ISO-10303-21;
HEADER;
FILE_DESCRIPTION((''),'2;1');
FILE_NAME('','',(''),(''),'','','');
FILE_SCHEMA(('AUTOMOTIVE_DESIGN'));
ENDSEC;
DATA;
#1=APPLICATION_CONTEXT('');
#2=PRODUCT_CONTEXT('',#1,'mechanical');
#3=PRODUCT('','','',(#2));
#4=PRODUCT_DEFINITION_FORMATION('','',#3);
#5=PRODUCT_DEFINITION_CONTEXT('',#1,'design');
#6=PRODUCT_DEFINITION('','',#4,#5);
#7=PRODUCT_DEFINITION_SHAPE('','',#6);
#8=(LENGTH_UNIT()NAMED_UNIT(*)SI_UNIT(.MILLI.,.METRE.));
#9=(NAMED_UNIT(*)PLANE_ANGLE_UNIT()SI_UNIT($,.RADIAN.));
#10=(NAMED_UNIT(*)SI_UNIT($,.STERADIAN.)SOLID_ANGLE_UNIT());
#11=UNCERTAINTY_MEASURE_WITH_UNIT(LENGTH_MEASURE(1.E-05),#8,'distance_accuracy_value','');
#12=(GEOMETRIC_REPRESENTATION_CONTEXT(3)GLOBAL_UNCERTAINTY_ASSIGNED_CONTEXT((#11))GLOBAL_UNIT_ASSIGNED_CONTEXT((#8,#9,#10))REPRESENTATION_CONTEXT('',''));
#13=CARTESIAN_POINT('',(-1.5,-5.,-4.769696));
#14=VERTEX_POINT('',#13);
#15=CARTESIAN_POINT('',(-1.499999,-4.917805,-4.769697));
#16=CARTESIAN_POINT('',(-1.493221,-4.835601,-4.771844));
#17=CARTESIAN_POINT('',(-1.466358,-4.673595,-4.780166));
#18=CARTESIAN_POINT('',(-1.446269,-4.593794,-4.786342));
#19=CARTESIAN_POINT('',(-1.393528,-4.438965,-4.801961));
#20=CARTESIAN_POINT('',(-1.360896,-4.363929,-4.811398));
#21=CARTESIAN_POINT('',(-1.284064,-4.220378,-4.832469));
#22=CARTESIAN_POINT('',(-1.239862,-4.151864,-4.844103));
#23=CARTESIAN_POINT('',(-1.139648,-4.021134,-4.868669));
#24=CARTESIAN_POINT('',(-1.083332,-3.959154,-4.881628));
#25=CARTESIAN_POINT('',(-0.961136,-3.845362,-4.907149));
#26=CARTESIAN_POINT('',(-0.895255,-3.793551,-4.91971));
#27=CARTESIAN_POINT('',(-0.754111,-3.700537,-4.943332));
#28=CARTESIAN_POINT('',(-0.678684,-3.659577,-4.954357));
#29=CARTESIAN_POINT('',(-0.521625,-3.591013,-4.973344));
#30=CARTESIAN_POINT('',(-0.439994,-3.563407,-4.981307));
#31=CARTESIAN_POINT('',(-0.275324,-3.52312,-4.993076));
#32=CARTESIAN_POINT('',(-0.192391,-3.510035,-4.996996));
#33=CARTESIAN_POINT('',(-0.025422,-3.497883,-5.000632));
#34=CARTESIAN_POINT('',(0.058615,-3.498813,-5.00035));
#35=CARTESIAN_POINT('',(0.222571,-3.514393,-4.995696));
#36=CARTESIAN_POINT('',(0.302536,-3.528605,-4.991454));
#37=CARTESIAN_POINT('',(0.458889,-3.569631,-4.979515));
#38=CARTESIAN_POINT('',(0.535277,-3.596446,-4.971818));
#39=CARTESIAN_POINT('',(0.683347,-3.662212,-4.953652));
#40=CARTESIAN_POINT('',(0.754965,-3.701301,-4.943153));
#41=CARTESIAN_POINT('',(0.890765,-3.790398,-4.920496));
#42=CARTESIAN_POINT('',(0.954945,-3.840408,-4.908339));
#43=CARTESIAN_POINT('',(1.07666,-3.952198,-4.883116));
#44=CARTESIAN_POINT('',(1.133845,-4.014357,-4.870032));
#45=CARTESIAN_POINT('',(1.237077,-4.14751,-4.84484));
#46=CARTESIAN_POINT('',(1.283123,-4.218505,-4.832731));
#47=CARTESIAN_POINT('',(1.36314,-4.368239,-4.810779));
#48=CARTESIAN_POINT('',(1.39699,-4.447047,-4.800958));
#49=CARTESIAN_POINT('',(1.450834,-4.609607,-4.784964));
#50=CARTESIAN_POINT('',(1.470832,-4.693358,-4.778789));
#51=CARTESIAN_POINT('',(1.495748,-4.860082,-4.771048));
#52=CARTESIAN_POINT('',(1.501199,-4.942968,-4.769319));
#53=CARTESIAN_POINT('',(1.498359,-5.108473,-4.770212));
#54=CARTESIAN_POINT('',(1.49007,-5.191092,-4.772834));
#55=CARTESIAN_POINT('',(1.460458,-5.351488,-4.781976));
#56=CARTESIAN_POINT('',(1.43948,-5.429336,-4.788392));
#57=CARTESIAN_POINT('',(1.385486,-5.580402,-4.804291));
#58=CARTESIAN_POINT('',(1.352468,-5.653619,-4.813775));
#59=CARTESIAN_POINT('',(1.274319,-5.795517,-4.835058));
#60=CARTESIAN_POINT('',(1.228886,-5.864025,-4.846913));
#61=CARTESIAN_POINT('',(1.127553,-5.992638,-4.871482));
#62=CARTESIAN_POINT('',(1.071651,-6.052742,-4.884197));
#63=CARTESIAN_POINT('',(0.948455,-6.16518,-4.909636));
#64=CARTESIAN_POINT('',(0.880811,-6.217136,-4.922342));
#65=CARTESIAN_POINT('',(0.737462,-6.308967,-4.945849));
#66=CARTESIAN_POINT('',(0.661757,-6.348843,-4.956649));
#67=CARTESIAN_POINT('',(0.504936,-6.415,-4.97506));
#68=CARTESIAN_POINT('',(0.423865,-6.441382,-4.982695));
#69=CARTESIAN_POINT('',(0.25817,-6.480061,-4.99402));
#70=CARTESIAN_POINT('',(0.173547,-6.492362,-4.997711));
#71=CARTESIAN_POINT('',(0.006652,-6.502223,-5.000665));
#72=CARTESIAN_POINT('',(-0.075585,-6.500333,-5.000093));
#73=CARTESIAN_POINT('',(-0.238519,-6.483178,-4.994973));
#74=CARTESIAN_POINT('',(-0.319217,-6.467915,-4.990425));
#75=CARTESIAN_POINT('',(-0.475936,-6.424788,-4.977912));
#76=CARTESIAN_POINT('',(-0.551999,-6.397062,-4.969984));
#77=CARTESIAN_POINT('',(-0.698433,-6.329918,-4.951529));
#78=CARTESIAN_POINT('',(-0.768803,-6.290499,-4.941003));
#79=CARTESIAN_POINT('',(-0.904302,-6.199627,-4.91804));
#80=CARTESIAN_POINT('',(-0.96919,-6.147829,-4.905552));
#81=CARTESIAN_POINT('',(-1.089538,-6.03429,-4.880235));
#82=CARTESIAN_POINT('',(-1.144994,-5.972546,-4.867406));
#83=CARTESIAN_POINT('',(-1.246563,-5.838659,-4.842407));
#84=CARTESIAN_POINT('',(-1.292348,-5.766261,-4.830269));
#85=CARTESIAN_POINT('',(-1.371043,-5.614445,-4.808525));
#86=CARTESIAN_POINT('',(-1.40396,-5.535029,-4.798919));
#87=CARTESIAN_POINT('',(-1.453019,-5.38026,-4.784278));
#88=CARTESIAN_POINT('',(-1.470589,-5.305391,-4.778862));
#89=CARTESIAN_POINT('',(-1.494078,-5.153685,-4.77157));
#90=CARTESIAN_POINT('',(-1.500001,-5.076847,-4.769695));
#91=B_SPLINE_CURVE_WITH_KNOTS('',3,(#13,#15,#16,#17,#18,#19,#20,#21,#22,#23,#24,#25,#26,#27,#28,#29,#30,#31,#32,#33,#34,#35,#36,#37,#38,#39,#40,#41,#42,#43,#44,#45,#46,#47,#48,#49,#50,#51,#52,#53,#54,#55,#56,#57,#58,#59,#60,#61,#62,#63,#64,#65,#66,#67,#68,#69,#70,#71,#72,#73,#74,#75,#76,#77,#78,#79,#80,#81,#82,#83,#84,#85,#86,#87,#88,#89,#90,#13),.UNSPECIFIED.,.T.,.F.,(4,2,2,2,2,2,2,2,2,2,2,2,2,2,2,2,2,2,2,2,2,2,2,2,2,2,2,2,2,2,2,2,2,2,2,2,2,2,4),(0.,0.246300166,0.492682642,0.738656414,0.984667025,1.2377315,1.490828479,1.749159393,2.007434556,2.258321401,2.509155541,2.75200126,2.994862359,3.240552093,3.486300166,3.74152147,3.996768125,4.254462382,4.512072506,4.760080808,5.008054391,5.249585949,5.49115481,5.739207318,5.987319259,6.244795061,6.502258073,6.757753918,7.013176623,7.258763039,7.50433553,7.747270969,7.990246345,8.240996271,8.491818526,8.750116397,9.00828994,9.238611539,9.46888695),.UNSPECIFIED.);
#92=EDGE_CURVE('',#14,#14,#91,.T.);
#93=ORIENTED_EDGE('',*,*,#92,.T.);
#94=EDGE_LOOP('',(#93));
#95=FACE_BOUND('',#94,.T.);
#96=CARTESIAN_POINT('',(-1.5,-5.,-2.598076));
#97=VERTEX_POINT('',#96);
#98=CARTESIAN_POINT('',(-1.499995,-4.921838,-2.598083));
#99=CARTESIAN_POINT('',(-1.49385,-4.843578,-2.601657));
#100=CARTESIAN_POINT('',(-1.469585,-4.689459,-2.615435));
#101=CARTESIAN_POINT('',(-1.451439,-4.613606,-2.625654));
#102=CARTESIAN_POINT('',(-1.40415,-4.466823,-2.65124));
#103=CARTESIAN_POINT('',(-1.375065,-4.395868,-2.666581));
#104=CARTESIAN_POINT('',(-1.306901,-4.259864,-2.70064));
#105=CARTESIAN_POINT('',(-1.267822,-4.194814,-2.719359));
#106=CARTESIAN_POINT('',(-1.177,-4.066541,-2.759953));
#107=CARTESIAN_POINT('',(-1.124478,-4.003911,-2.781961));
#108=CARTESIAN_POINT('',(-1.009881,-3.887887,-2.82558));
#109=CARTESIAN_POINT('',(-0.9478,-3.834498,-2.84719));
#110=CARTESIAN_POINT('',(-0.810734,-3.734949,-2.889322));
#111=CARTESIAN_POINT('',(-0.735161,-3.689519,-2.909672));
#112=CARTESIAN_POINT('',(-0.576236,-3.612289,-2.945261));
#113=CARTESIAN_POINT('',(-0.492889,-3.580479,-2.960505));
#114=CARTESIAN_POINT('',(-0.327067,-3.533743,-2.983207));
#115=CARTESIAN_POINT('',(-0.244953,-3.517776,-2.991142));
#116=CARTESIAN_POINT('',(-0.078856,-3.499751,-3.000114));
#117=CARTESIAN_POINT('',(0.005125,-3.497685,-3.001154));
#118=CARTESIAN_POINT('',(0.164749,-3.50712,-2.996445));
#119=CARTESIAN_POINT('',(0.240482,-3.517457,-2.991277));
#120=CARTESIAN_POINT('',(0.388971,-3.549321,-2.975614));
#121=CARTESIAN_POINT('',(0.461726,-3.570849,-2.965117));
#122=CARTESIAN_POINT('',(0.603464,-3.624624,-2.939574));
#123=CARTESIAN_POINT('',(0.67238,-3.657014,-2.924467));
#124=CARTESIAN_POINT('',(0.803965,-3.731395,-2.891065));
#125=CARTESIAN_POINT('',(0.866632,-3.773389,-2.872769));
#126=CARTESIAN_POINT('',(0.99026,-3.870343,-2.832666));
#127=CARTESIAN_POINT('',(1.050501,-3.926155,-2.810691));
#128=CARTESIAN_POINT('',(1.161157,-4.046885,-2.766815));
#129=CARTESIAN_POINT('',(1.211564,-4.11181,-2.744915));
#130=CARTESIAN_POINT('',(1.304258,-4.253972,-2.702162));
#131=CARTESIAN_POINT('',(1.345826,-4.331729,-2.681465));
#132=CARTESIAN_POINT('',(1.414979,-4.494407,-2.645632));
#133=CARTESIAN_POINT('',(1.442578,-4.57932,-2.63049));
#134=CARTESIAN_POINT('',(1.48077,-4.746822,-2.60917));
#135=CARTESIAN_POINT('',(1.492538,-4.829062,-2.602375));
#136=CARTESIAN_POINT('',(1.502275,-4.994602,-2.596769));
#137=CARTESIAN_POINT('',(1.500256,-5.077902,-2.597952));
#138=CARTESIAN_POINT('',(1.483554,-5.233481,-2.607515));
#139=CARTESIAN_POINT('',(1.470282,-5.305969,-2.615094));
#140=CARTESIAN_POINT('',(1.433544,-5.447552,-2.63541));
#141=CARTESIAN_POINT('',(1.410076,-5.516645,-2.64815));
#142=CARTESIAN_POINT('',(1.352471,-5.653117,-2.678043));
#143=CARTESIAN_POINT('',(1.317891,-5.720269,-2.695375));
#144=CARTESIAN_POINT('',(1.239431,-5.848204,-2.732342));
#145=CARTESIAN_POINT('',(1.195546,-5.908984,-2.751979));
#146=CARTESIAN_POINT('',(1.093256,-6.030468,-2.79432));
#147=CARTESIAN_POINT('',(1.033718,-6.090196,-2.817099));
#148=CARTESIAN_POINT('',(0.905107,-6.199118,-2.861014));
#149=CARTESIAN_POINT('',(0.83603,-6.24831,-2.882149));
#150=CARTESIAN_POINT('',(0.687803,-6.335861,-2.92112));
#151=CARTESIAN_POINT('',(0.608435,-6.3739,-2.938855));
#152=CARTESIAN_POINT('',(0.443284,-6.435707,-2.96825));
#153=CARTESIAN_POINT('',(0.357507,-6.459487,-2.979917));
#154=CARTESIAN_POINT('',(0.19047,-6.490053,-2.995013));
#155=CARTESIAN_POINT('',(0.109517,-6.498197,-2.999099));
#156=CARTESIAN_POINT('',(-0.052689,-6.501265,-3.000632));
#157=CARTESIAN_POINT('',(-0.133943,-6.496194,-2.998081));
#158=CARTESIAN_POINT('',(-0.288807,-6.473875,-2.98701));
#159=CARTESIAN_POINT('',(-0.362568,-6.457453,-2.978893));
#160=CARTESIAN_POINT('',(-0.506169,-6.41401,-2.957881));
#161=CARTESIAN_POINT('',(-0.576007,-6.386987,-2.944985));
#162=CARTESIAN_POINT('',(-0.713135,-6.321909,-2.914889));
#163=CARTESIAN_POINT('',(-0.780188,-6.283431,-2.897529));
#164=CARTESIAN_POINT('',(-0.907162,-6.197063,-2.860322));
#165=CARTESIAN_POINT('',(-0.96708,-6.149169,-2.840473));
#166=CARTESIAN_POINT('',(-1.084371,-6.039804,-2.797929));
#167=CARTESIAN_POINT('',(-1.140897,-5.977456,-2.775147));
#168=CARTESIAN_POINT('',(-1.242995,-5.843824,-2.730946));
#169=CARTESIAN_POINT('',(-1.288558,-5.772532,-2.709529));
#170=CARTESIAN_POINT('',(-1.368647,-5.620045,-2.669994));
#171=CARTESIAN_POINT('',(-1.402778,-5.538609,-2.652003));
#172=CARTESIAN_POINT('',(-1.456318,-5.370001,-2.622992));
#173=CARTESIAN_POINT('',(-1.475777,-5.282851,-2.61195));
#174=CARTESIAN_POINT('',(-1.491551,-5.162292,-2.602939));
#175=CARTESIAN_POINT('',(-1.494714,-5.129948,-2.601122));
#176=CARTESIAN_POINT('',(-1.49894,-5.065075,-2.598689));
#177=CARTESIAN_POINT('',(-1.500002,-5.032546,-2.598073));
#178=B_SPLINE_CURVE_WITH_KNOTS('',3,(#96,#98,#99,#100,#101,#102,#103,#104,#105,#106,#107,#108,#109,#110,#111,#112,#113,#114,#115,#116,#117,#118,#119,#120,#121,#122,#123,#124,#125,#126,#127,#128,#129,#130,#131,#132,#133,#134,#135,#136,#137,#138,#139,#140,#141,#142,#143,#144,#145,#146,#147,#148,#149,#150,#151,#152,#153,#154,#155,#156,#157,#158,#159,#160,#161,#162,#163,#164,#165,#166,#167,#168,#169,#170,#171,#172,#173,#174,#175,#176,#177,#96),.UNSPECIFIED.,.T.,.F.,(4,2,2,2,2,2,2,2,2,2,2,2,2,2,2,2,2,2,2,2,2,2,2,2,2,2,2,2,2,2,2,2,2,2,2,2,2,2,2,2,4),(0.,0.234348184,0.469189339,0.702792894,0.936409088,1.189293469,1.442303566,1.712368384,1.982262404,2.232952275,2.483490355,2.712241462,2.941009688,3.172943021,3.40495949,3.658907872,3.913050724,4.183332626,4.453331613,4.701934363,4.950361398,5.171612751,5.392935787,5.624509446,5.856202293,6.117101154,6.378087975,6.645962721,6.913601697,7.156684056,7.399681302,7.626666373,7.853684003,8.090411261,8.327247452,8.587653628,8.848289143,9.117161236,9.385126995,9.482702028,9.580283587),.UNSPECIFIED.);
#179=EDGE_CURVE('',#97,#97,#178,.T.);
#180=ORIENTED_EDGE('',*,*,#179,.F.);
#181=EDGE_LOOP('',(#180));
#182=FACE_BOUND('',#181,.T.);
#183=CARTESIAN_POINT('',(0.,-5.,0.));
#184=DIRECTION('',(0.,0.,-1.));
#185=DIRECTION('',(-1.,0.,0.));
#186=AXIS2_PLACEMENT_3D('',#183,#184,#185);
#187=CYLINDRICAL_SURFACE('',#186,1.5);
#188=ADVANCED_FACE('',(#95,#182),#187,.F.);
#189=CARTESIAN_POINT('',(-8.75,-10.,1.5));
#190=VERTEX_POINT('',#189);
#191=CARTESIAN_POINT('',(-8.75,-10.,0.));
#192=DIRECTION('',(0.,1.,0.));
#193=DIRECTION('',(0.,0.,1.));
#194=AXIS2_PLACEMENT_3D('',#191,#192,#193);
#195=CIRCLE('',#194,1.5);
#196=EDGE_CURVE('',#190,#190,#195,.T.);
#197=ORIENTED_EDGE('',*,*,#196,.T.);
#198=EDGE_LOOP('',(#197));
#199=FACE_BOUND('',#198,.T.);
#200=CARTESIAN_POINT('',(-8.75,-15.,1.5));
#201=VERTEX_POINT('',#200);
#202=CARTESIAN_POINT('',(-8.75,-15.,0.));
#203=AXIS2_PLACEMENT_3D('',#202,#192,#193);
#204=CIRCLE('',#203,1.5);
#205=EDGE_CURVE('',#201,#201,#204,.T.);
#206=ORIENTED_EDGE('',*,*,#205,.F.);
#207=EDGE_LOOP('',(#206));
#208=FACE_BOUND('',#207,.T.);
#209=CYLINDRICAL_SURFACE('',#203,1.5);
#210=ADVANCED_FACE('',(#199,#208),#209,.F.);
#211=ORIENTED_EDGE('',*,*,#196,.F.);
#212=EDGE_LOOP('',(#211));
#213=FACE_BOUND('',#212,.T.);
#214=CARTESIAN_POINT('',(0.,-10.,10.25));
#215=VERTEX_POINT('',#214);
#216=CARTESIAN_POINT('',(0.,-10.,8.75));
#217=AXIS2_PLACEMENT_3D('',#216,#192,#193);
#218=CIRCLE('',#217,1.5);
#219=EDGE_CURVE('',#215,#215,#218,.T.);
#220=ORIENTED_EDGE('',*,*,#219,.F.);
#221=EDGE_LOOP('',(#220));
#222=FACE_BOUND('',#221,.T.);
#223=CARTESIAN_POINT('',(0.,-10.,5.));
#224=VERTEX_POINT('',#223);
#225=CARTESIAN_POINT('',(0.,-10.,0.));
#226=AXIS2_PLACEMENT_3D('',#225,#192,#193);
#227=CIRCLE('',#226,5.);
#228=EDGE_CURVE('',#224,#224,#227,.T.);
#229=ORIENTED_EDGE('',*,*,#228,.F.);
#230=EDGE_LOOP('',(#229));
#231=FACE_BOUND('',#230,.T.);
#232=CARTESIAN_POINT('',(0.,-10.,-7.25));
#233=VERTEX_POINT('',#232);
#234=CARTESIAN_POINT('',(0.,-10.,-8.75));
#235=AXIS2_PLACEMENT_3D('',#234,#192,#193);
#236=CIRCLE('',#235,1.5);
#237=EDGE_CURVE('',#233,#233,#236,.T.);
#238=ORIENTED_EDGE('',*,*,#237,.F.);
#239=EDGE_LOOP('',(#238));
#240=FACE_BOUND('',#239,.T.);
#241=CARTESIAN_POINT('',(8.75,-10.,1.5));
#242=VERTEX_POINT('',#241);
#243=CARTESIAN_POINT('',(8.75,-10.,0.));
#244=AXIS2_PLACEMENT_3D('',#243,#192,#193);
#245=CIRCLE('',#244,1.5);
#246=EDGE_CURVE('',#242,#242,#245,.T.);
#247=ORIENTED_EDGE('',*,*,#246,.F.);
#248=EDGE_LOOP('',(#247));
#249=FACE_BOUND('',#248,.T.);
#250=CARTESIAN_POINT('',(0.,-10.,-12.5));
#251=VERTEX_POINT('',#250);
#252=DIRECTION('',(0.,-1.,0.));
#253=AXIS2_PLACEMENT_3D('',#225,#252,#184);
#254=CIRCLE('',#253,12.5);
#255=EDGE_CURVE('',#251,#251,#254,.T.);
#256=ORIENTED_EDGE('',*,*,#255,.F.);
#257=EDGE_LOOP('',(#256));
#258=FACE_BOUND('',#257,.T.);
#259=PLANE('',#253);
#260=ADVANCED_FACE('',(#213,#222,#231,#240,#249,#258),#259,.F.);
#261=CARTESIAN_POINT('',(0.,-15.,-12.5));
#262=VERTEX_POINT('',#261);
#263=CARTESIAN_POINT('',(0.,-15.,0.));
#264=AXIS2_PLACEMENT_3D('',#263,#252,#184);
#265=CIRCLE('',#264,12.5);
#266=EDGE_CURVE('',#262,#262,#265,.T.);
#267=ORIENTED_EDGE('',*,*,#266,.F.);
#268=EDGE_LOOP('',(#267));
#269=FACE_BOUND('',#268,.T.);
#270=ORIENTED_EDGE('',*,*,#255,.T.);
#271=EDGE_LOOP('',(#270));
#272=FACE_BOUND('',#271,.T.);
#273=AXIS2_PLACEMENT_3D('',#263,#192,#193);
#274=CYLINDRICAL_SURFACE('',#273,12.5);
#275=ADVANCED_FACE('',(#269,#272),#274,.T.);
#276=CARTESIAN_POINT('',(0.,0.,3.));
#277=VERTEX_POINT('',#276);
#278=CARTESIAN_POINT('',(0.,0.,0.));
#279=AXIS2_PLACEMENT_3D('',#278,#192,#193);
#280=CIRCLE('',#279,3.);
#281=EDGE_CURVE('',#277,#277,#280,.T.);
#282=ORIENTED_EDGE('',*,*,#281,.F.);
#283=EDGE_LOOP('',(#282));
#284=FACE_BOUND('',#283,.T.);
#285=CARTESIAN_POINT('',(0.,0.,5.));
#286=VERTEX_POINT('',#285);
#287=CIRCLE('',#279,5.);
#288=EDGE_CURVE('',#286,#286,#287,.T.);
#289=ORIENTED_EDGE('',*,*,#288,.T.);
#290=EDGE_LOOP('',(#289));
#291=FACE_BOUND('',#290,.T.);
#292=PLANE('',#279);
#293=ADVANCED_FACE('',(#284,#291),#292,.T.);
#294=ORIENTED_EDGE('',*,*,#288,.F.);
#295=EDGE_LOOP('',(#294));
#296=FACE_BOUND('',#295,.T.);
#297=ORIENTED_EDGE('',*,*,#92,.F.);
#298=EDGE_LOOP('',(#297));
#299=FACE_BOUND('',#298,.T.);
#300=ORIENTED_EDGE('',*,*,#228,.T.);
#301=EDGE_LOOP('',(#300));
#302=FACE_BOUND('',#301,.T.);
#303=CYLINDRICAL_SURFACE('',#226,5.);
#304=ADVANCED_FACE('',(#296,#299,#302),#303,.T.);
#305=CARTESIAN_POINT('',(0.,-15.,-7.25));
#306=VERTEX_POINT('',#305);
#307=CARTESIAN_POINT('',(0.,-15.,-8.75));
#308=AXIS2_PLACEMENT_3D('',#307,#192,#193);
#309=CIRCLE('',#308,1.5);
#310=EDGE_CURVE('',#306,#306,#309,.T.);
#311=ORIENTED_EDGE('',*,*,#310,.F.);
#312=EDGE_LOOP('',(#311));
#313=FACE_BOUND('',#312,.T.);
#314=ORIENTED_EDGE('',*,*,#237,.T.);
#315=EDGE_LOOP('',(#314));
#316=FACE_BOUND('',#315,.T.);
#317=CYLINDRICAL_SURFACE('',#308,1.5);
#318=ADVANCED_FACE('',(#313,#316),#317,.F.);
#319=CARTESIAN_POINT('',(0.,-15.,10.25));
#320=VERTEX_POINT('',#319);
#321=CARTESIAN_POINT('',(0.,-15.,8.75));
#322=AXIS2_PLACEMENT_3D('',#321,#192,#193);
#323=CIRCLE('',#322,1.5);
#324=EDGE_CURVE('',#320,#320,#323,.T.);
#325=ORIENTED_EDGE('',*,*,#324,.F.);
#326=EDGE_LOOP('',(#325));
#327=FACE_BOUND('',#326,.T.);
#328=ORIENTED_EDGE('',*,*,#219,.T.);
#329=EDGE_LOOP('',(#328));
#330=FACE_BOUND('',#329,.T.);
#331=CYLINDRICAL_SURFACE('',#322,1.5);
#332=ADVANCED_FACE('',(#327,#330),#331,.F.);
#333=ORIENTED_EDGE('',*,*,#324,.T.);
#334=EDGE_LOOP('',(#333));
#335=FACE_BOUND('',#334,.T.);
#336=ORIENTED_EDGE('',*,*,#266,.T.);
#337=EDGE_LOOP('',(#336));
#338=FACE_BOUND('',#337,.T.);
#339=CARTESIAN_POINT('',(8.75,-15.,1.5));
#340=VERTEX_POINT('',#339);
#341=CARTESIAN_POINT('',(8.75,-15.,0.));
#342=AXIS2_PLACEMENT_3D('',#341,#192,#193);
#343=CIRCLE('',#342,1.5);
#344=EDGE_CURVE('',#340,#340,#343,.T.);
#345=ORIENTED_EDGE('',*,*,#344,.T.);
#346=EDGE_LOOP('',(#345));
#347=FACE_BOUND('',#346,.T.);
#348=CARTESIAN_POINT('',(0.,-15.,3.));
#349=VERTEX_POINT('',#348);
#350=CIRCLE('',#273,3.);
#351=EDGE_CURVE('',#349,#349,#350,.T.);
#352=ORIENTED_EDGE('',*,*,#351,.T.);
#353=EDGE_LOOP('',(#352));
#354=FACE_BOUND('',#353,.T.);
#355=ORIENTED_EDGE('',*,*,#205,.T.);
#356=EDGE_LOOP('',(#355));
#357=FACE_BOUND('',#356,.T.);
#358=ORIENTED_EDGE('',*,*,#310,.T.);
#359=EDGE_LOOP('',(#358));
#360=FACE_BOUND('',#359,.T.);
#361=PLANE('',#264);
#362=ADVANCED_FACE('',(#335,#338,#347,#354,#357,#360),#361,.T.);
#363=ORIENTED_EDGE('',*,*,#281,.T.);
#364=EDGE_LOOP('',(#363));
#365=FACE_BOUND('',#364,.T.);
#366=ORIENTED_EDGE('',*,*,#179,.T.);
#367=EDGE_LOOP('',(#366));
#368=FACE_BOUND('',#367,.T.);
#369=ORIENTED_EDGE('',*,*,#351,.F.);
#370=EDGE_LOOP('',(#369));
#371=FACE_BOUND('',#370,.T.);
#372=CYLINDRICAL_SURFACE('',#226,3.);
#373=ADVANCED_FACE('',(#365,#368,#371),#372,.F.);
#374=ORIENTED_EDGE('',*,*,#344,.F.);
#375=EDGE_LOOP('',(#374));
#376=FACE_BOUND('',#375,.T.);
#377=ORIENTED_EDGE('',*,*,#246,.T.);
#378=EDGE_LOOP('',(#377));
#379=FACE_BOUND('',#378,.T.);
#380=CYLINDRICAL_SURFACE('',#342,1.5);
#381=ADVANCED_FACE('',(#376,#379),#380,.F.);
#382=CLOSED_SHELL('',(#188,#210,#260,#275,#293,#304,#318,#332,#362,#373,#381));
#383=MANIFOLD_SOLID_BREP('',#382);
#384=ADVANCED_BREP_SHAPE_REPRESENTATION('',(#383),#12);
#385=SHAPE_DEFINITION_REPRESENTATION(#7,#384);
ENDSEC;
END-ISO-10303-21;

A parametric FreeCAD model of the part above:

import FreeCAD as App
import Part
import Sketcher
Q = App.Units.Quantity

doc = App.newDocument("Part")
body = doc.addObject("PartDesign::Body", "Body")

sketch1 = body.newObject("Sketcher::SketchObject", "Sketch")
sketch1.AttachmentSupport = (doc.getObject("XZ_Plane"), [""])
sketch1.MapMode = "FlatFace"
sketch1.addGeometry([
    Part.Circle(App.Vector(0, 0, 0), App.Vector(0, 0, 1), 5),
    Part.Circle(App.Vector(0, 0, 0), App.Vector(0, 0, 1), 3),
], False)
sketch1.addConstraint([
    Sketcher.Constraint("Coincident", 0, 3, -1, 1),
    Sketcher.Constraint("Coincident", 1, 3, -1, 1),
    Sketcher.Constraint("Diameter", 0, Q("10 mm")),
    Sketcher.Constraint("Diameter", 1, Q("6 mm")),
])
pad1 = body.newObject("PartDesign::Pad", "Pad")
pad1.Profile = sketch1
pad1.Length = 10

sketch2 = body.newObject("Sketcher::SketchObject", "Sketch001")
sketch2.AttachmentSupport = (doc.getObject("XZ_Plane"), [""])
sketch2.MapMode = "FlatFace"
sketch2.AttachmentOffset = App.Placement(App.Vector(0, 0, 10), App.Rotation())
sketch2.addGeometry(Part.Circle(App.Vector(0, 0, 0), App.Vector(0, 0, 1), 12), False)
sketch2.addConstraint([
    Sketcher.Constraint("Coincident", 0, 3, -1, 1),
    Sketcher.Constraint("Diameter", 0, Q("25 mm")),
])
pad2 = body.newObject("PartDesign::Pad", "Pad001")
pad2.Profile = sketch2
pad2.Length = 5

sketch3 = body.newObject("Sketcher::SketchObject", "Sketch002")
sketch3.AttachmentSupport = (doc.getObject("XZ_Plane"), [""])
sketch3.MapMode = "FlatFace"
sketch3.AttachmentOffset = App.Placement(App.Vector(0, 0, 10), App.Rotation())
sketch3.addGeometry([
    Part.Circle(App.Vector(0, -8.8, 0), App.Vector(0, 0, 1), 1.5),
    Part.Circle(App.Vector(8.8, 0, 0), App.Vector(0, 0, 1), 1.5),
    Part.Circle(App.Vector(0, 8.8, 0), App.Vector(0, 0, 1), 1.5),
    Part.Circle(App.Vector(-8.8, 0, 0), App.Vector(0, 0, 1), 1.5),
], False)
sketch3.addConstraint([
    Sketcher.Constraint("Equal", 0, 1),
    Sketcher.Constraint("Equal", 1, 2),
    Sketcher.Constraint("Equal", 2, 3),
    Sketcher.Constraint("Symmetric", 0, 3, 2, 3, -1, 1),
    Sketcher.Constraint("Symmetric", 1, 3, 3, 3, -1, 1),
    Sketcher.Constraint("PointOnObject", 0, 3, -2),
    Sketcher.Constraint("PointOnObject", 1, 3, -1),
    Sketcher.Constraint("Diameter", 0, Q("3 mm")),
    Sketcher.Constraint("DistanceY", 0, 3, 2, 3, Q("17.5 mm")),
    Sketcher.Constraint("DistanceX", 3, 3, 1, 3, Q("17.5 mm")),
])
pocket1 = body.newObject("PartDesign::Pocket", "Pocket")
pocket1.Profile = sketch3
pocket1.Length = 5
pocket1.Reversed = True

sketch4 = body.newObject("Sketcher::SketchObject", "Sketch003")
sketch4.AttachmentSupport = (doc.getObject("XY_Plane"), [""])
sketch4.MapMode = "FlatFace"
sketch4.AttachmentOffset = App.Placement(App.Vector(0, 0, -5), App.Rotation())
sketch4.addGeometry(Part.Circle(App.Vector(0, -5, 0), App.Vector(0, 0, 1), 1.5), False)
sketch4.addConstraint([
    Sketcher.Constraint("PointOnObject", 0, 3, -2),
    Sketcher.Constraint("Diameter", 0, Q("3 mm")),
    Sketcher.Constraint("DistanceY", 0, 3, -1, 1, Q("5 mm")),
])
pocket2 = body.newObject("PartDesign::Pocket", "Pocket001")
pocket2.Profile = sketch4
pocket2.Length = 5
pocket2.Reversed = True

sketch5 = body.newObject("Sketcher::SketchObject", "Sketch004")
sketch5.AttachmentSupport = (doc.getObject("XZ_Plane"), [""])
sketch5.MapMode = "FlatFace"
sketch5.AttachmentOffset = App.Placement(App.Vector(0, 0, 10), App.Rotation())
sketch5.addGeometry(Part.Circle(App.Vector(0, 0, 0), App.Vector(0, 0, 1), 3), False)
sketch5.addConstraint([
    Sketcher.Constraint("Coincident", 0, 3, -1, 1),
    Sketcher.Constraint("Diameter", 0, Q("6 mm")),
])
pocket3 = body.newObject("PartDesign::Pocket", "Pocket002")
pocket3.Profile = sketch5
pocket3.Length = 5
pocket3.Reversed = True

doc.recompute()
